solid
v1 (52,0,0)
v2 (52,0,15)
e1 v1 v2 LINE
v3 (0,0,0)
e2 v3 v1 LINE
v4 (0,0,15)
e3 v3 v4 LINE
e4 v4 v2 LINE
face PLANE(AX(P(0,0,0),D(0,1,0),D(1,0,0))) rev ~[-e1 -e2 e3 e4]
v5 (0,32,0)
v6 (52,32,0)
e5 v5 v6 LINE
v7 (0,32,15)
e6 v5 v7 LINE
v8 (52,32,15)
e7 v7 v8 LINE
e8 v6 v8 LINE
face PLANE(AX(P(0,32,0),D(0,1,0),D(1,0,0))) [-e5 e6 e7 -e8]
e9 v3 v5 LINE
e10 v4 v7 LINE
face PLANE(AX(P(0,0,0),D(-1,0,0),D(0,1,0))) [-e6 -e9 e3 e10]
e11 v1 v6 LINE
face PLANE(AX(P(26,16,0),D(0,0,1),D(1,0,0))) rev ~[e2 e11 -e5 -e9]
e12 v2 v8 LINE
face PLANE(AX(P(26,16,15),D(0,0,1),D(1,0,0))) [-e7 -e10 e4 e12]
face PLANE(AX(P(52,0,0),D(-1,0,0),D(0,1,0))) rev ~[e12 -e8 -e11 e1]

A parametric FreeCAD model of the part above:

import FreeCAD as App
import Part
import Sketcher
from FreeCAD import Vector


def add_polygon(sketch, points):
    """Adds a closed chain of lines whose ends are joined by coincident constraints."""
    first, n = sketch.GeometryCount, len(points)
    for a, b in zip(points, points[1:] + points[:1]):
        sketch.addGeometry(Part.LineSegment(App.Vector(*a, 0), App.Vector(*b, 0)), False)
    for i in range(n):
        sketch.addConstraint(Sketcher.Constraint("Coincident", first + i, 2, first + (i + 1) % n, 1))

doc = App.newDocument("Part")
params = doc.addObject("Spreadsheet::Sheet", "Params")
for row, (alias, value) in enumerate([
    ("sketch1_width", "52 mm"),
    ("sketch1_height", "32 mm"),
    ("pad1_length", "15 mm"),
], start=1):
    params.set(f"A{row}", alias)
    params.set(f"B{row}", "=" + value)
    params.setAlias(f"B{row}", alias)

body = doc.addObject("PartDesign::Body", "Body")

# Sketch on XY plane
sketch1 = doc.addObject("Sketcher::SketchObject", "Sketch")
body.addObject(sketch1)
sketch1.AttachmentSupport = (doc.XY_Plane, [""])
sketch1.MapMode = "FlatFace"
add_polygon(sketch1, [(0, 32), (0, 0), (52, 0), (52, 32)])  # lines 0-3
sketch1.addConstraint([
    Sketcher.Constraint("Vertical", 0),
    Sketcher.Constraint("Horizontal", 1),
    Sketcher.Constraint("Vertical", 2),
    Sketcher.Constraint("Horizontal", 3),
    Sketcher.Constraint("Coincident", 0, 2, -1, 1),
    Sketcher.Constraint("DistanceX", 1, 1, 1, 2, 52.0),
    Sketcher.Constraint("DistanceY", 0, 2, 0, 1, 32.0),
])
sketch1.setExpression("Constraints[9]", "Params.sketch1_width")
sketch1.setExpression("Constraints[10]", "Params.sketch1_height")
pad1 = doc.addObject("PartDesign::Pad", "Pad")
body.addObject(pad1)
pad1.Profile = sketch1
pad1.setExpression("Length", "Params.pad1_length")

doc.recompute()
